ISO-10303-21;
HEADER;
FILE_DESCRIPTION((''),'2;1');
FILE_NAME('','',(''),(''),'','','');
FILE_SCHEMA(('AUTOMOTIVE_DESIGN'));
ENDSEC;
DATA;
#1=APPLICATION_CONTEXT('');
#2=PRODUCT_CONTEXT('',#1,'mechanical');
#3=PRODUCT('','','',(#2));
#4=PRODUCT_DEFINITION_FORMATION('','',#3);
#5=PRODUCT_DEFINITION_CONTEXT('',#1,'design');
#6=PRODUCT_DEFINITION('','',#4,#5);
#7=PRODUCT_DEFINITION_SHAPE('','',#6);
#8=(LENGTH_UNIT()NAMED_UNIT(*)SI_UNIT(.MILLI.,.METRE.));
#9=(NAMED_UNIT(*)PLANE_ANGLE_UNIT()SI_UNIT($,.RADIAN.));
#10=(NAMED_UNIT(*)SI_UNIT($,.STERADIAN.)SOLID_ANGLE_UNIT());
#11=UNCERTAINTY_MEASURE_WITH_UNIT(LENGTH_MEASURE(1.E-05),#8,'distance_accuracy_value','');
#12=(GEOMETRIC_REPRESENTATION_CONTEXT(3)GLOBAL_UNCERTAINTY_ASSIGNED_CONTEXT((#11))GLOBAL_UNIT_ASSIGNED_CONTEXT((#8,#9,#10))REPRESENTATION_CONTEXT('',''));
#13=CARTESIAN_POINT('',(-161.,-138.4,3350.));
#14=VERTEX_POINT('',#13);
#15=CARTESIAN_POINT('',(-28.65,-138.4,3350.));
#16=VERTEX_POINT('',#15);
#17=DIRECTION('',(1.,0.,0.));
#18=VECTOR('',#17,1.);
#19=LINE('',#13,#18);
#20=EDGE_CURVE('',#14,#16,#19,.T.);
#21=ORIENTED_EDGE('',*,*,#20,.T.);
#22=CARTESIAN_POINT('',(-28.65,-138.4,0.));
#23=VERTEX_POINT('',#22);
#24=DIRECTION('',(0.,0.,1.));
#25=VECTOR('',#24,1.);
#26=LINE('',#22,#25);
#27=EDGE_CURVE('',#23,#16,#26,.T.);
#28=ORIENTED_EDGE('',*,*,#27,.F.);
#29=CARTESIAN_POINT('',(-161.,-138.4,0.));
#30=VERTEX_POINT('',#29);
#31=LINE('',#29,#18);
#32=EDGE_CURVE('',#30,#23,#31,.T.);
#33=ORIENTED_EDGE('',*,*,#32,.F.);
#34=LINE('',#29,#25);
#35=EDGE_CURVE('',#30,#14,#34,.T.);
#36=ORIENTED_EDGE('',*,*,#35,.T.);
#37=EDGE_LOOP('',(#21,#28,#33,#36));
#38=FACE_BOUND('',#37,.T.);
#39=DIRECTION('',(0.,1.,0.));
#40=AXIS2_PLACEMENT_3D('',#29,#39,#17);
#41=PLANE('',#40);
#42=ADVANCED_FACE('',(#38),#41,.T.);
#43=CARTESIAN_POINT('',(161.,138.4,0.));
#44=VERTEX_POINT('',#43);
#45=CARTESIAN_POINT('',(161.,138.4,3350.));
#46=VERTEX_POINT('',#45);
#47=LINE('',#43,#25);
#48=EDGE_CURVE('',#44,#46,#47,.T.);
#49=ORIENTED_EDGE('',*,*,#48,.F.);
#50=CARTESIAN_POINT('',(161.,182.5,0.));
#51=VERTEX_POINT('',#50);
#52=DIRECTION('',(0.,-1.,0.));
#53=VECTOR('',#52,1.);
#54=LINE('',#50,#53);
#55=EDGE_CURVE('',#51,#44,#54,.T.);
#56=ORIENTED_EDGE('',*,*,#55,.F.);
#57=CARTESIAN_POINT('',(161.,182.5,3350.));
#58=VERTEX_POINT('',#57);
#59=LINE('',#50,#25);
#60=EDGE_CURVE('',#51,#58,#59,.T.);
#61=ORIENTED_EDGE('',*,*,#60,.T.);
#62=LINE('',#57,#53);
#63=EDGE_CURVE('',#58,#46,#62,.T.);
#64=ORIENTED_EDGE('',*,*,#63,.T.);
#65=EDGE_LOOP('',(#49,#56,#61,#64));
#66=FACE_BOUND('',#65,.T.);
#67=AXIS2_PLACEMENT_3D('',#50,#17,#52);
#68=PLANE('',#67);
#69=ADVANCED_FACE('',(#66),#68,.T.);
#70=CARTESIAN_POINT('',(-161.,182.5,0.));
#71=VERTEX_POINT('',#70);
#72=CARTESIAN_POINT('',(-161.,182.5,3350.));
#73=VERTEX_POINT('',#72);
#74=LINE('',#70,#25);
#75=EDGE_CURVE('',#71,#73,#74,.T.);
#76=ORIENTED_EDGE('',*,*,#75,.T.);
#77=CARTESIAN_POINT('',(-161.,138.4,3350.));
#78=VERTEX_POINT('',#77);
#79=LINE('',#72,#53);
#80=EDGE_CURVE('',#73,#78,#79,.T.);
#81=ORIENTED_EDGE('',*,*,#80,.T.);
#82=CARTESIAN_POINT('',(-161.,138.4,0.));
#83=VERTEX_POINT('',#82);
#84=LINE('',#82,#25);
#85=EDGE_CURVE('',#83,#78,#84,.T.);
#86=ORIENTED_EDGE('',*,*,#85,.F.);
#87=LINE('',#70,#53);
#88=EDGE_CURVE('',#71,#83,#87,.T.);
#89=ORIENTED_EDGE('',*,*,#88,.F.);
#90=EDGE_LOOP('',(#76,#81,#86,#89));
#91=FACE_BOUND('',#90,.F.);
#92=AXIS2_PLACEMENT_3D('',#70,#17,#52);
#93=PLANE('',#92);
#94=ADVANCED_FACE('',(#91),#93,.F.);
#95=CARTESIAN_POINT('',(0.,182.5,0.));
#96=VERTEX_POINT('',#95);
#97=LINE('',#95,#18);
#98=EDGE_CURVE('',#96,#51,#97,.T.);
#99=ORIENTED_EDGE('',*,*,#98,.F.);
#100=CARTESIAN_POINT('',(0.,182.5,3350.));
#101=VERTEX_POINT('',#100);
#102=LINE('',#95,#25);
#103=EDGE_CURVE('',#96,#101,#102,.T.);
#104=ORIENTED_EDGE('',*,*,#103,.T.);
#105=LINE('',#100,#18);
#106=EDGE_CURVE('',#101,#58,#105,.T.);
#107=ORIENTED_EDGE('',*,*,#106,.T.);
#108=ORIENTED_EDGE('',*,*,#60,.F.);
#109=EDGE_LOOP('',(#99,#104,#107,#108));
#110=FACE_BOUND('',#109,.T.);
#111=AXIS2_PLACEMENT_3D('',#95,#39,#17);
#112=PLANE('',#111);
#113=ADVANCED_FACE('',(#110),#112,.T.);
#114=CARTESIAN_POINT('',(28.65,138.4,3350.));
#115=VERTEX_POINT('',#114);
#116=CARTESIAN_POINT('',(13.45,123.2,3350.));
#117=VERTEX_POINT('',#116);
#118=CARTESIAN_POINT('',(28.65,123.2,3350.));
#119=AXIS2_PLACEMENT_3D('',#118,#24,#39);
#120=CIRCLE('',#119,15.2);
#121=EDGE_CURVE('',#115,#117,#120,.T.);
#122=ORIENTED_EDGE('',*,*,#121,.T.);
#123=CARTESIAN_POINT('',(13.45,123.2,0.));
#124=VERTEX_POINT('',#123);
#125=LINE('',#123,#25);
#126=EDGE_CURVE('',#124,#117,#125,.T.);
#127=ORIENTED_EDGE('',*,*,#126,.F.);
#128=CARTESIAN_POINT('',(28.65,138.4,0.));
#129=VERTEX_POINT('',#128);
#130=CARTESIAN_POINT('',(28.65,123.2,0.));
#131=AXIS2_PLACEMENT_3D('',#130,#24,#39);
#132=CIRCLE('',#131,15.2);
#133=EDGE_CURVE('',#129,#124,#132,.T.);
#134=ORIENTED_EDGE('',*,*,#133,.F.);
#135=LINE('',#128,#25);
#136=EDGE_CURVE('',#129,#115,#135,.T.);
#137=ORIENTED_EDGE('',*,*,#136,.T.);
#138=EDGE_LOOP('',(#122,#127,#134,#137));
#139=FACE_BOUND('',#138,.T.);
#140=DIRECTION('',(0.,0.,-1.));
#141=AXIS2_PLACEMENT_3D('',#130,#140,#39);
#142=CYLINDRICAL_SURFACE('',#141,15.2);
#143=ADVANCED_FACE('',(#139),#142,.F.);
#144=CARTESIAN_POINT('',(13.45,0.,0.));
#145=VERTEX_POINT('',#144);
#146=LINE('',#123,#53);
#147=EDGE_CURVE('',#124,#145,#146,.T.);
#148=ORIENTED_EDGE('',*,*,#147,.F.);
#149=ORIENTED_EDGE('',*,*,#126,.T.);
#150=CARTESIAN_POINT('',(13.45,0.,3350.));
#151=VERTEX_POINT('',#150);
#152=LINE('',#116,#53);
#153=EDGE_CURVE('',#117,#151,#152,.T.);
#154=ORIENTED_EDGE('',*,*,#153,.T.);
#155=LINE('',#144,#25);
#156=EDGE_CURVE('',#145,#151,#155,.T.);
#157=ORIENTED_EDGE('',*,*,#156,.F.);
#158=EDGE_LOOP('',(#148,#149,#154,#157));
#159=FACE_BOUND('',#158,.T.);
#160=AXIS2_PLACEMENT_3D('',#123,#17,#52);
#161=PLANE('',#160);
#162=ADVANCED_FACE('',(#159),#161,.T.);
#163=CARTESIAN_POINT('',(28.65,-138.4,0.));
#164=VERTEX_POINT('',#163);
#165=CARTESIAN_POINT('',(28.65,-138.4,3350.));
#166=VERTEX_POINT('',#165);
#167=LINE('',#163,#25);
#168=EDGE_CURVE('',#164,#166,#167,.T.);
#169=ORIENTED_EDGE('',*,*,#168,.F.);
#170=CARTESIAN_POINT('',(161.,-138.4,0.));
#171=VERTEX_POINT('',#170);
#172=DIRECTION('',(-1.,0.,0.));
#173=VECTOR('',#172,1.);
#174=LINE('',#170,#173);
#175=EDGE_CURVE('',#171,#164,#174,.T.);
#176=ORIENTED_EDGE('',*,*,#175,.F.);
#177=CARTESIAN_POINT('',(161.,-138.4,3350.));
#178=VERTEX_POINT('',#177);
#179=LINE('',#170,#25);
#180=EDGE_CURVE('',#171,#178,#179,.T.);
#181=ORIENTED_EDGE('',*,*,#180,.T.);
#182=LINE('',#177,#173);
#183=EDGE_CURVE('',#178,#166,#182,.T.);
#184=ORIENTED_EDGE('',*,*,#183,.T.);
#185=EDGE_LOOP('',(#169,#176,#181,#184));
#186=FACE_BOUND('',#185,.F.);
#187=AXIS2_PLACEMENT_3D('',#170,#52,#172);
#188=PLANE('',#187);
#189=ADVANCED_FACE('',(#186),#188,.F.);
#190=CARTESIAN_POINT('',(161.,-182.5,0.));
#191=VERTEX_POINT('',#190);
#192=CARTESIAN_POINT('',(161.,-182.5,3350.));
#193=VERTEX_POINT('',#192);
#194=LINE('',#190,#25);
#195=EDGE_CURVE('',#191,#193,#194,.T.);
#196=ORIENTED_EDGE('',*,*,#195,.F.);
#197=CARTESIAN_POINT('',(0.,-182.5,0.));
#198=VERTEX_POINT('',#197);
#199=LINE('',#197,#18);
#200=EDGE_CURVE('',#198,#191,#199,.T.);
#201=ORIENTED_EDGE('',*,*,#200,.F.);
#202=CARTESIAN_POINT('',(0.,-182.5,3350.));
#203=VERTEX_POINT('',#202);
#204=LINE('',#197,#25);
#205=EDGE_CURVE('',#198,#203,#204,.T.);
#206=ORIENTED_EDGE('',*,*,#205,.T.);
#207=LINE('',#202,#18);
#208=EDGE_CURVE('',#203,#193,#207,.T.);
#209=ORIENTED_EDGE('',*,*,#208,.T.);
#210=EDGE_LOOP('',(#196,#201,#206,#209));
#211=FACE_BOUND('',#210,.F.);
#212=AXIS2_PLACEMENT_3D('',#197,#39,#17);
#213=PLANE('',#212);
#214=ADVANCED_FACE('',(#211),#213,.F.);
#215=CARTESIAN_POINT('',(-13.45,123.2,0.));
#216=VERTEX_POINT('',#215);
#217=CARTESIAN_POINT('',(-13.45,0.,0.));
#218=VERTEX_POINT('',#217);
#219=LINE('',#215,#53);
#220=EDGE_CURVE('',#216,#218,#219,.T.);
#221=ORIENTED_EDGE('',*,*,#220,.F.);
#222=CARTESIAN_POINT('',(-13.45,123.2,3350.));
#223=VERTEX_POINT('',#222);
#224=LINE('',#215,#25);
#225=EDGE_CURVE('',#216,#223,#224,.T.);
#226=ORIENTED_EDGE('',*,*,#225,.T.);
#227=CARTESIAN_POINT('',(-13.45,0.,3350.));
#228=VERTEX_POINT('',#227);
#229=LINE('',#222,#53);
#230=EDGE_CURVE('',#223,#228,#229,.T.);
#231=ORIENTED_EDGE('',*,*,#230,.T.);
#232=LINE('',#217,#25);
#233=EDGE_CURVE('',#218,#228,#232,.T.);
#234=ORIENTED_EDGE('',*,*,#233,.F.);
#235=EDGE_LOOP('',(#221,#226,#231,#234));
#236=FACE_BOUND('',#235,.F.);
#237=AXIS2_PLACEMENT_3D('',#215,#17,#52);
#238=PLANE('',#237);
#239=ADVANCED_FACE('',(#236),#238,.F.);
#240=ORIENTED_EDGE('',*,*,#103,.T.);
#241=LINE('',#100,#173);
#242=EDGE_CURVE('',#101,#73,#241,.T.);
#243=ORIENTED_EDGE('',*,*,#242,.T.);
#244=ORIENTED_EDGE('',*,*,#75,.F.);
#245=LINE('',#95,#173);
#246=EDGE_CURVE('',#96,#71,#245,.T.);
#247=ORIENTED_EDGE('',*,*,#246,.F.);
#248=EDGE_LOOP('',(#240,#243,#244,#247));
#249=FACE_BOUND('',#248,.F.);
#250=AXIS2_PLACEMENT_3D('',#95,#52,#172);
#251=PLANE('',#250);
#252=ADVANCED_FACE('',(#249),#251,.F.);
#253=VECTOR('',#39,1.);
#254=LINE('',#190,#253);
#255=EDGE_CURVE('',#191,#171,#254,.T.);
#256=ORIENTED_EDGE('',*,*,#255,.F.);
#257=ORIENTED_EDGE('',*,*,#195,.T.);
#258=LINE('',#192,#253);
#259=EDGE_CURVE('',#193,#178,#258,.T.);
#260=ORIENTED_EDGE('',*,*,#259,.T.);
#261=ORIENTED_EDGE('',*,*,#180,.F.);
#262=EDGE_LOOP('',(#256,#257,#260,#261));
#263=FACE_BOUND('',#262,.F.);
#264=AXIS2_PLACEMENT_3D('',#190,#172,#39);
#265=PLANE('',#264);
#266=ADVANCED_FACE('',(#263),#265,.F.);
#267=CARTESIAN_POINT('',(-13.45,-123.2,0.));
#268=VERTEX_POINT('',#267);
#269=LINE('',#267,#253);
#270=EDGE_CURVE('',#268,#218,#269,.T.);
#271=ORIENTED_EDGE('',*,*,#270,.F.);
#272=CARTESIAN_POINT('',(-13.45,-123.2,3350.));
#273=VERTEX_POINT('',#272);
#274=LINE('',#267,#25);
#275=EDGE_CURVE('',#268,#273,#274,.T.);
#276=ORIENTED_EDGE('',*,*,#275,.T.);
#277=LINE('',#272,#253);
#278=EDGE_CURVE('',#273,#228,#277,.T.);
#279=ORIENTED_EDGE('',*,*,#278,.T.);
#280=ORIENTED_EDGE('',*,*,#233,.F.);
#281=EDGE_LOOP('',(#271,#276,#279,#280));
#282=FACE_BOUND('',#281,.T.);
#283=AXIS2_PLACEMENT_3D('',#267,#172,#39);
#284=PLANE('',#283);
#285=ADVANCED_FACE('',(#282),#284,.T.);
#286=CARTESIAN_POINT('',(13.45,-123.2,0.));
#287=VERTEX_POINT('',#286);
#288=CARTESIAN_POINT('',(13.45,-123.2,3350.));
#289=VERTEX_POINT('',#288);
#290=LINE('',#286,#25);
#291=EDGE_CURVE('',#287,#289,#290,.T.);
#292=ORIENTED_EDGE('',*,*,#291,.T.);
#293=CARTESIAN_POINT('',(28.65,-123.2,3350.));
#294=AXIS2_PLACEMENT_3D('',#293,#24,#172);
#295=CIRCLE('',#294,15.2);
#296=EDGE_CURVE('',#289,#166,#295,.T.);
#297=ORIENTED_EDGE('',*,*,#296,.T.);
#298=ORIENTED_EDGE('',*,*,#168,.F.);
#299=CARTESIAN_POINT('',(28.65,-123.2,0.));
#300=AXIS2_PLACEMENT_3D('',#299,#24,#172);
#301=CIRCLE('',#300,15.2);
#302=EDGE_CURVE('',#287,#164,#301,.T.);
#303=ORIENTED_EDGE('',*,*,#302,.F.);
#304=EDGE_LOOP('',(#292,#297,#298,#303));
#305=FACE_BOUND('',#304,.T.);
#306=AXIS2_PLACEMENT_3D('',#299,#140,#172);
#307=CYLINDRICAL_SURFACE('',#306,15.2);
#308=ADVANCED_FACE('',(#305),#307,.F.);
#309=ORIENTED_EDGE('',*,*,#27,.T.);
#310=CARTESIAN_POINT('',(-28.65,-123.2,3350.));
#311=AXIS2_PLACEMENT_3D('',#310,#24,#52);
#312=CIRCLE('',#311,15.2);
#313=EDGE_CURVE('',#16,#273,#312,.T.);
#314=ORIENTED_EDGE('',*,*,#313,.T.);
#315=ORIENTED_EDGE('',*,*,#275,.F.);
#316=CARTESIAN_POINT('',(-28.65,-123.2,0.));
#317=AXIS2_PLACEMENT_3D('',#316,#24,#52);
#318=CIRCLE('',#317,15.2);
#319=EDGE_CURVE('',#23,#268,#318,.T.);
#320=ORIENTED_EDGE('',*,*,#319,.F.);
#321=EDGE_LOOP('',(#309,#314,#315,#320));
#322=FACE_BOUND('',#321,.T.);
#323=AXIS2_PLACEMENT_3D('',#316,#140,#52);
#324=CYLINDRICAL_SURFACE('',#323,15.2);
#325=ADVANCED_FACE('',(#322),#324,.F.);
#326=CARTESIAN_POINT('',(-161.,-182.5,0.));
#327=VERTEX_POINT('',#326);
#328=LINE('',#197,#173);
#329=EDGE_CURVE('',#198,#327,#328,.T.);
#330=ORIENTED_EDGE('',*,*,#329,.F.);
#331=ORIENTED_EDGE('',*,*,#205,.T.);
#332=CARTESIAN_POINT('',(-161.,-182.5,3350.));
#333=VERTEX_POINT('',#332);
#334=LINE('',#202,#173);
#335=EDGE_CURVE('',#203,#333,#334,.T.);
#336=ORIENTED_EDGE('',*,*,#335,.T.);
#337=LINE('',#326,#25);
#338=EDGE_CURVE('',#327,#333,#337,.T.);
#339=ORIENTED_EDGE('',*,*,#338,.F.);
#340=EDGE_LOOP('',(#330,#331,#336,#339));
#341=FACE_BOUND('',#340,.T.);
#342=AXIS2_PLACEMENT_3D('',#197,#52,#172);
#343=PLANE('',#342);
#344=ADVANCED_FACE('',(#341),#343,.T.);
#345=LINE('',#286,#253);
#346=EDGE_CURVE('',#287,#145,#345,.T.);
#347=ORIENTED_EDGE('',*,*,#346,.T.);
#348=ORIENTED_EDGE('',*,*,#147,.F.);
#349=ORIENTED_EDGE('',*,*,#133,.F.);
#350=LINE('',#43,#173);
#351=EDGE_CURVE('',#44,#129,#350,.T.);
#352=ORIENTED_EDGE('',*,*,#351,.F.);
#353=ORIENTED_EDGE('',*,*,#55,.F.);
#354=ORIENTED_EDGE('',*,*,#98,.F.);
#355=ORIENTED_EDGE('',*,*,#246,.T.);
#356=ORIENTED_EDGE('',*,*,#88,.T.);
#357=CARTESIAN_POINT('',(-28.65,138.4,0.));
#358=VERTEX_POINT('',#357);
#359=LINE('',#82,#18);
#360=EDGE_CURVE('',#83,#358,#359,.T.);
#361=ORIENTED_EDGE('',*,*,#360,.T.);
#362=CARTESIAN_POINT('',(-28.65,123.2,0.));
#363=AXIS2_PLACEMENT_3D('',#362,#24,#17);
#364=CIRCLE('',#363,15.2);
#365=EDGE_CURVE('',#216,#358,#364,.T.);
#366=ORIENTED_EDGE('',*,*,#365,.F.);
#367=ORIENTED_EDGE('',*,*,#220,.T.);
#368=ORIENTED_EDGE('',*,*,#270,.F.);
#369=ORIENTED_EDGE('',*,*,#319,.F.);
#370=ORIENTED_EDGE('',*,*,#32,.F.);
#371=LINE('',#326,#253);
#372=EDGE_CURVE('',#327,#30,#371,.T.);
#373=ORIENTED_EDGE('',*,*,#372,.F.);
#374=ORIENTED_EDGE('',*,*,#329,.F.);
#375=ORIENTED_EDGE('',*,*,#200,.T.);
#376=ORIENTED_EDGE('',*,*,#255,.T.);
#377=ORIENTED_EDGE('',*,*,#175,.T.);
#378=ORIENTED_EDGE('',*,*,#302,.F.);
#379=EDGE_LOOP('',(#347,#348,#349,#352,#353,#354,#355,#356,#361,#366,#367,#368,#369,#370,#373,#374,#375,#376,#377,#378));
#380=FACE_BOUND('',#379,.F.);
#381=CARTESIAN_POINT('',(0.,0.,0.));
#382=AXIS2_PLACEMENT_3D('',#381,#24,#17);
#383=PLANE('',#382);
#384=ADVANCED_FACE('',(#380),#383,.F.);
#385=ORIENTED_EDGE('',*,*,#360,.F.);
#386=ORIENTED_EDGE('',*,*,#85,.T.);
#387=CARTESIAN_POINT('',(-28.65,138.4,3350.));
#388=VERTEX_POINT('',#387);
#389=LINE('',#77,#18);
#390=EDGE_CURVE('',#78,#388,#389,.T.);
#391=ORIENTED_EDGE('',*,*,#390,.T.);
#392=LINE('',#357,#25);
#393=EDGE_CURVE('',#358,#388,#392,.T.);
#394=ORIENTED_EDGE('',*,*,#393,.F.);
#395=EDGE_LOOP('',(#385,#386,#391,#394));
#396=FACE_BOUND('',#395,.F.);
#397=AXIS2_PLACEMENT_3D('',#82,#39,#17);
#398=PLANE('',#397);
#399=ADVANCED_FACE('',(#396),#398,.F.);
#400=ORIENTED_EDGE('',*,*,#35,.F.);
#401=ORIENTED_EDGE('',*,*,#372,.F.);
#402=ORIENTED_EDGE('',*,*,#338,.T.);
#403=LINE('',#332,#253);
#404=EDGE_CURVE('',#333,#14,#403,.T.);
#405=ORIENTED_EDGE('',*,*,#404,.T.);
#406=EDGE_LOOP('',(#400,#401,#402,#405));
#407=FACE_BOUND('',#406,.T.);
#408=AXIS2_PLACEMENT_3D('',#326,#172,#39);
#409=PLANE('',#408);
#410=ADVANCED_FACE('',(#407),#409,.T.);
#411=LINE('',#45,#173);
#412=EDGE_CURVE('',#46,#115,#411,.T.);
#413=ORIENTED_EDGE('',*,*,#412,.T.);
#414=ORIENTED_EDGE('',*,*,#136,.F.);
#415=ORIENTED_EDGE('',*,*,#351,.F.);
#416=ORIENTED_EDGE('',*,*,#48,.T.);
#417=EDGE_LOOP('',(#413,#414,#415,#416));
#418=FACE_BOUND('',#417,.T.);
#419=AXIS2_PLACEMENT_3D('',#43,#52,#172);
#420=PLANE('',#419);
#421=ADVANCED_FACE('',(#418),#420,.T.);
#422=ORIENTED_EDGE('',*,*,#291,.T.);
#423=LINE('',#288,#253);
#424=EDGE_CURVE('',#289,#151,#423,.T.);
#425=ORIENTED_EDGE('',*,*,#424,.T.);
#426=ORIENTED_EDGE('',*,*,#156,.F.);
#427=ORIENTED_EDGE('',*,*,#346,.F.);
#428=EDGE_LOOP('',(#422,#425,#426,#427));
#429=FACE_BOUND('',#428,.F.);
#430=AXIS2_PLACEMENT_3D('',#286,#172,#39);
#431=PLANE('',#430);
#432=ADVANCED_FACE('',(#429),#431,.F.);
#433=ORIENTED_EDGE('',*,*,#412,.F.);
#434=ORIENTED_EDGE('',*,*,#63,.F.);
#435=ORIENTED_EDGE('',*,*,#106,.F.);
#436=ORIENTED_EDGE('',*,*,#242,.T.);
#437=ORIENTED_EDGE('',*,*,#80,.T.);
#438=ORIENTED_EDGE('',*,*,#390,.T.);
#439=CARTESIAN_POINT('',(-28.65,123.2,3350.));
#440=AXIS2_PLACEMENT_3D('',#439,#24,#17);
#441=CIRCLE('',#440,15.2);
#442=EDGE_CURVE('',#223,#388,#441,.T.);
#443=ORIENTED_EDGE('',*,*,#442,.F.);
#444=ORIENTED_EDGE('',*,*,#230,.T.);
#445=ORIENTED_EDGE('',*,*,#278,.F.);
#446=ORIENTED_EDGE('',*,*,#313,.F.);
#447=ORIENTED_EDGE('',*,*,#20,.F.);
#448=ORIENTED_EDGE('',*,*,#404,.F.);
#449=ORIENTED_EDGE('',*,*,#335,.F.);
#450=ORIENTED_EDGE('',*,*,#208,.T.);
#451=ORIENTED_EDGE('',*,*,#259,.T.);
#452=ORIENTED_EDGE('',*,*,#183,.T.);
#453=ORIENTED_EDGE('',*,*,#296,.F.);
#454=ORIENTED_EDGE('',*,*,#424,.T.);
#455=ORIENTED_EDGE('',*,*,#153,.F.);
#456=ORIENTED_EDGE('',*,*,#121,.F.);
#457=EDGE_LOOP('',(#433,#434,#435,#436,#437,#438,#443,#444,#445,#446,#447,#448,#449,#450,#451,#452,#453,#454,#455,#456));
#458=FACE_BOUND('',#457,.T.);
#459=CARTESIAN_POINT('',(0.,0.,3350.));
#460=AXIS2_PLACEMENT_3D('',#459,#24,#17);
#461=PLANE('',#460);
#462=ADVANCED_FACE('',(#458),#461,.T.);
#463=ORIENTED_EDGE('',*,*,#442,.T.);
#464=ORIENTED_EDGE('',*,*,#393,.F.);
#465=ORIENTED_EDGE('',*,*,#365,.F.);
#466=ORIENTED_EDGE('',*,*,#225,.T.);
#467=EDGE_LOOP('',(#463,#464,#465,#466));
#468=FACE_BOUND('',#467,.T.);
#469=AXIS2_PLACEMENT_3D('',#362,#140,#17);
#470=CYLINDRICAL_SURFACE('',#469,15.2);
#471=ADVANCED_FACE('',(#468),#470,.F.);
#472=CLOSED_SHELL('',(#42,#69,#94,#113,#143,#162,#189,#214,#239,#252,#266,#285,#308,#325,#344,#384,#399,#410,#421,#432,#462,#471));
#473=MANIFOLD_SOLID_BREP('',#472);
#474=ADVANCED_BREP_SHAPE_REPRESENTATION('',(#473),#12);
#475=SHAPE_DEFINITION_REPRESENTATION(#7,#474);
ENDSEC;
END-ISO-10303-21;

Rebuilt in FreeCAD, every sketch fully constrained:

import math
import FreeCAD as App
import Part
import Sketcher
Q = App.Units.Quantity

doc = App.newDocument("Part")
body = doc.addObject("PartDesign::Body", "Body")

# Sketch on XY plane
sketch1 = doc.addObject("Sketcher::SketchObject", "Sketch")
body.addObject(sketch1)
sketch1.AttachmentSupport = (doc.XY_Plane, [""])
sketch1.MapMode = "FlatFace"
sketch1.addGeometry(Part.LineSegment(App.Vector(-161, -138, 0), App.Vector(-161, -182, 0)), False)
sketch1.addGeometry(Part.LineSegment(App.Vector(-161, -182, 0), App.Vector(161, -182, 0)), False)
sketch1.addGeometry(Part.LineSegment(App.Vector(161, -182, 0), App.Vector(161, -138, 0)), False)
sketch1.addGeometry(Part.LineSegment(App.Vector(161, -138, 0), App.Vector(29, -138, 0)), False)
sketch1.addGeometry(Part.ArcOfCircle(Part.Circle(App.Vector(29, -123, 0), App.Vector(0, 0, 1), 15), math.radians(180), math.radians(270)), False)
sketch1.addGeometry(Part.LineSegment(App.Vector(13, -123, 0), App.Vector(13, 123, 0)), False)
sketch1.addGeometry(Part.ArcOfCircle(Part.Circle(App.Vector(29, 123, 0), App.Vector(0, 0, 1), 15), math.radians(90), math.radians(180)), False)
sketch1.addGeometry(Part.LineSegment(App.Vector(29, 138, 0), App.Vector(161, 138, 0)), False)
sketch1.addGeometry(Part.LineSegment(App.Vector(161, 138, 0), App.Vector(161, 182, 0)), False)
sketch1.addGeometry(Part.LineSegment(App.Vector(161, 182, 0), App.Vector(-161, 182, 0)), False)
sketch1.addGeometry(Part.LineSegment(App.Vector(-161, 182, 0), App.Vector(-161, 138, 0)), False)
sketch1.addGeometry(Part.LineSegment(App.Vector(-161, 138, 0), App.Vector(-29, 138, 0)), False)
sketch1.addGeometry(Part.ArcOfCircle(Part.Circle(App.Vector(-29, 123, 0), App.Vector(0, 0, 1), 15), math.radians(0), math.radians(90)), False)
sketch1.addGeometry(Part.LineSegment(App.Vector(-13, 123, 0), App.Vector(-13, -123, 0)), False)
sketch1.addGeometry(Part.ArcOfCircle(Part.Circle(App.Vector(-29, -123, 0), App.Vector(0, 0, 1), 15), math.radians(-90), math.radians(0)), False)
sketch1.addGeometry(Part.LineSegment(App.Vector(-29, -138, 0), App.Vector(-161, -138, 0)), False)
sketch1.addConstraint(Sketcher.Constraint("Coincident", 0, 2, 1, 1))
sketch1.addConstraint(Sketcher.Constraint("Coincident", 1, 2, 2, 1))
sketch1.addConstraint(Sketcher.Constraint("Coincident", 2, 2, 3, 1))
sketch1.addConstraint(Sketcher.Constraint("Tangent", 3, 2, 4, 2))
sketch1.addConstraint(Sketcher.Constraint("Tangent", 4, 1, 5, 1))
sketch1.addConstraint(Sketcher.Constraint("Tangent", 5, 2, 6, 2))
sketch1.addConstraint(Sketcher.Constraint("Tangent", 6, 1, 7, 1))
sketch1.addConstraint(Sketcher.Constraint("Coincident", 7, 2, 8, 1))
sketch1.addConstraint(Sketcher.Constraint("Coincident", 8, 2, 9, 1))
sketch1.addConstraint(Sketcher.Constraint("Coincident", 9, 2, 10, 1))
sketch1.addConstraint(Sketcher.Constraint("Coincident", 10, 2, 11, 1))
sketch1.addConstraint(Sketcher.Constraint("Tangent", 11, 2, 12, 2))
sketch1.addConstraint(Sketcher.Constraint("Tangent", 12, 1, 13, 1))
sketch1.addConstraint(Sketcher.Constraint("Tangent", 13, 2, 14, 2))
sketch1.addConstraint(Sketcher.Constraint("Tangent", 14, 1, 15, 1))
sketch1.addConstraint(Sketcher.Constraint("Coincident", 15, 2, 0, 1))
sketch1.addConstraint(Sketcher.Constraint("Vertical", 0))
sketch1.addConstraint(Sketcher.Constraint("Horizontal", 1))
sketch1.addConstraint(Sketcher.Constraint("Vertical", 2))
sketch1.addConstraint(Sketcher.Constraint("Horizontal", 3))
sketch1.addConstraint(Sketcher.Constraint("Vertical", 5))
sketch1.addConstraint(Sketcher.Constraint("Horizontal", 7))
sketch1.addConstraint(Sketcher.Constraint("Vertical", 8))
sketch1.addConstraint(Sketcher.Constraint("Horizontal", 9))
sketch1.addConstraint(Sketcher.Constraint("Vertical", 10))
sketch1.addConstraint(Sketcher.Constraint("Horizontal", 11))
sketch1.addConstraint(Sketcher.Constraint("Vertical", 13))
sketch1.addConstraint(Sketcher.Constraint("Horizontal", 15))
sketch1.addConstraint(Sketcher.Constraint("Equal", 4, 6))
sketch1.addConstraint(Sketcher.Constraint("Equal", 6, 12))
sketch1.addConstraint(Sketcher.Constraint("Equal", 12, 14))
sketch1.addConstraint(Sketcher.Constraint("Symmetric", 4, 3, 12, 3, -1, 1))
sketch1.addConstraint(Sketcher.Constraint("Symmetric", 0, 2, 8, 2, -1, 1))
sketch1.addConstraint(Sketcher.Constraint("Symmetric", 7, 2, 10, 2, -2))
sketch1.addConstraint(Sketcher.Constraint("Symmetric", 2, 2, 15, 2, -2))
sketch1.addConstraint(Sketcher.Constraint("Radius", 4, Q("15.2 mm")))
sketch1.addConstraint(Sketcher.Constraint("DistanceY", 0, 2, 0, 1, Q("44.1 mm")))
sketch1.addConstraint(Sketcher.Constraint("DistanceX", 0, 2, -1, 1, Q("161 mm")))
sketch1.addConstraint(Sketcher.Constraint("DistanceY", 0, 2, -1, 1, Q("182.5 mm")))
sketch1.addConstraint(Sketcher.Constraint("DistanceX", -1, 1, 4, 1, Q("13.45 mm")))
pad1 = doc.addObject("PartDesign::Pad", "Pad")
body.addObject(pad1)
pad1.Profile = sketch1
pad1.Length = 3350

doc.recompute()
